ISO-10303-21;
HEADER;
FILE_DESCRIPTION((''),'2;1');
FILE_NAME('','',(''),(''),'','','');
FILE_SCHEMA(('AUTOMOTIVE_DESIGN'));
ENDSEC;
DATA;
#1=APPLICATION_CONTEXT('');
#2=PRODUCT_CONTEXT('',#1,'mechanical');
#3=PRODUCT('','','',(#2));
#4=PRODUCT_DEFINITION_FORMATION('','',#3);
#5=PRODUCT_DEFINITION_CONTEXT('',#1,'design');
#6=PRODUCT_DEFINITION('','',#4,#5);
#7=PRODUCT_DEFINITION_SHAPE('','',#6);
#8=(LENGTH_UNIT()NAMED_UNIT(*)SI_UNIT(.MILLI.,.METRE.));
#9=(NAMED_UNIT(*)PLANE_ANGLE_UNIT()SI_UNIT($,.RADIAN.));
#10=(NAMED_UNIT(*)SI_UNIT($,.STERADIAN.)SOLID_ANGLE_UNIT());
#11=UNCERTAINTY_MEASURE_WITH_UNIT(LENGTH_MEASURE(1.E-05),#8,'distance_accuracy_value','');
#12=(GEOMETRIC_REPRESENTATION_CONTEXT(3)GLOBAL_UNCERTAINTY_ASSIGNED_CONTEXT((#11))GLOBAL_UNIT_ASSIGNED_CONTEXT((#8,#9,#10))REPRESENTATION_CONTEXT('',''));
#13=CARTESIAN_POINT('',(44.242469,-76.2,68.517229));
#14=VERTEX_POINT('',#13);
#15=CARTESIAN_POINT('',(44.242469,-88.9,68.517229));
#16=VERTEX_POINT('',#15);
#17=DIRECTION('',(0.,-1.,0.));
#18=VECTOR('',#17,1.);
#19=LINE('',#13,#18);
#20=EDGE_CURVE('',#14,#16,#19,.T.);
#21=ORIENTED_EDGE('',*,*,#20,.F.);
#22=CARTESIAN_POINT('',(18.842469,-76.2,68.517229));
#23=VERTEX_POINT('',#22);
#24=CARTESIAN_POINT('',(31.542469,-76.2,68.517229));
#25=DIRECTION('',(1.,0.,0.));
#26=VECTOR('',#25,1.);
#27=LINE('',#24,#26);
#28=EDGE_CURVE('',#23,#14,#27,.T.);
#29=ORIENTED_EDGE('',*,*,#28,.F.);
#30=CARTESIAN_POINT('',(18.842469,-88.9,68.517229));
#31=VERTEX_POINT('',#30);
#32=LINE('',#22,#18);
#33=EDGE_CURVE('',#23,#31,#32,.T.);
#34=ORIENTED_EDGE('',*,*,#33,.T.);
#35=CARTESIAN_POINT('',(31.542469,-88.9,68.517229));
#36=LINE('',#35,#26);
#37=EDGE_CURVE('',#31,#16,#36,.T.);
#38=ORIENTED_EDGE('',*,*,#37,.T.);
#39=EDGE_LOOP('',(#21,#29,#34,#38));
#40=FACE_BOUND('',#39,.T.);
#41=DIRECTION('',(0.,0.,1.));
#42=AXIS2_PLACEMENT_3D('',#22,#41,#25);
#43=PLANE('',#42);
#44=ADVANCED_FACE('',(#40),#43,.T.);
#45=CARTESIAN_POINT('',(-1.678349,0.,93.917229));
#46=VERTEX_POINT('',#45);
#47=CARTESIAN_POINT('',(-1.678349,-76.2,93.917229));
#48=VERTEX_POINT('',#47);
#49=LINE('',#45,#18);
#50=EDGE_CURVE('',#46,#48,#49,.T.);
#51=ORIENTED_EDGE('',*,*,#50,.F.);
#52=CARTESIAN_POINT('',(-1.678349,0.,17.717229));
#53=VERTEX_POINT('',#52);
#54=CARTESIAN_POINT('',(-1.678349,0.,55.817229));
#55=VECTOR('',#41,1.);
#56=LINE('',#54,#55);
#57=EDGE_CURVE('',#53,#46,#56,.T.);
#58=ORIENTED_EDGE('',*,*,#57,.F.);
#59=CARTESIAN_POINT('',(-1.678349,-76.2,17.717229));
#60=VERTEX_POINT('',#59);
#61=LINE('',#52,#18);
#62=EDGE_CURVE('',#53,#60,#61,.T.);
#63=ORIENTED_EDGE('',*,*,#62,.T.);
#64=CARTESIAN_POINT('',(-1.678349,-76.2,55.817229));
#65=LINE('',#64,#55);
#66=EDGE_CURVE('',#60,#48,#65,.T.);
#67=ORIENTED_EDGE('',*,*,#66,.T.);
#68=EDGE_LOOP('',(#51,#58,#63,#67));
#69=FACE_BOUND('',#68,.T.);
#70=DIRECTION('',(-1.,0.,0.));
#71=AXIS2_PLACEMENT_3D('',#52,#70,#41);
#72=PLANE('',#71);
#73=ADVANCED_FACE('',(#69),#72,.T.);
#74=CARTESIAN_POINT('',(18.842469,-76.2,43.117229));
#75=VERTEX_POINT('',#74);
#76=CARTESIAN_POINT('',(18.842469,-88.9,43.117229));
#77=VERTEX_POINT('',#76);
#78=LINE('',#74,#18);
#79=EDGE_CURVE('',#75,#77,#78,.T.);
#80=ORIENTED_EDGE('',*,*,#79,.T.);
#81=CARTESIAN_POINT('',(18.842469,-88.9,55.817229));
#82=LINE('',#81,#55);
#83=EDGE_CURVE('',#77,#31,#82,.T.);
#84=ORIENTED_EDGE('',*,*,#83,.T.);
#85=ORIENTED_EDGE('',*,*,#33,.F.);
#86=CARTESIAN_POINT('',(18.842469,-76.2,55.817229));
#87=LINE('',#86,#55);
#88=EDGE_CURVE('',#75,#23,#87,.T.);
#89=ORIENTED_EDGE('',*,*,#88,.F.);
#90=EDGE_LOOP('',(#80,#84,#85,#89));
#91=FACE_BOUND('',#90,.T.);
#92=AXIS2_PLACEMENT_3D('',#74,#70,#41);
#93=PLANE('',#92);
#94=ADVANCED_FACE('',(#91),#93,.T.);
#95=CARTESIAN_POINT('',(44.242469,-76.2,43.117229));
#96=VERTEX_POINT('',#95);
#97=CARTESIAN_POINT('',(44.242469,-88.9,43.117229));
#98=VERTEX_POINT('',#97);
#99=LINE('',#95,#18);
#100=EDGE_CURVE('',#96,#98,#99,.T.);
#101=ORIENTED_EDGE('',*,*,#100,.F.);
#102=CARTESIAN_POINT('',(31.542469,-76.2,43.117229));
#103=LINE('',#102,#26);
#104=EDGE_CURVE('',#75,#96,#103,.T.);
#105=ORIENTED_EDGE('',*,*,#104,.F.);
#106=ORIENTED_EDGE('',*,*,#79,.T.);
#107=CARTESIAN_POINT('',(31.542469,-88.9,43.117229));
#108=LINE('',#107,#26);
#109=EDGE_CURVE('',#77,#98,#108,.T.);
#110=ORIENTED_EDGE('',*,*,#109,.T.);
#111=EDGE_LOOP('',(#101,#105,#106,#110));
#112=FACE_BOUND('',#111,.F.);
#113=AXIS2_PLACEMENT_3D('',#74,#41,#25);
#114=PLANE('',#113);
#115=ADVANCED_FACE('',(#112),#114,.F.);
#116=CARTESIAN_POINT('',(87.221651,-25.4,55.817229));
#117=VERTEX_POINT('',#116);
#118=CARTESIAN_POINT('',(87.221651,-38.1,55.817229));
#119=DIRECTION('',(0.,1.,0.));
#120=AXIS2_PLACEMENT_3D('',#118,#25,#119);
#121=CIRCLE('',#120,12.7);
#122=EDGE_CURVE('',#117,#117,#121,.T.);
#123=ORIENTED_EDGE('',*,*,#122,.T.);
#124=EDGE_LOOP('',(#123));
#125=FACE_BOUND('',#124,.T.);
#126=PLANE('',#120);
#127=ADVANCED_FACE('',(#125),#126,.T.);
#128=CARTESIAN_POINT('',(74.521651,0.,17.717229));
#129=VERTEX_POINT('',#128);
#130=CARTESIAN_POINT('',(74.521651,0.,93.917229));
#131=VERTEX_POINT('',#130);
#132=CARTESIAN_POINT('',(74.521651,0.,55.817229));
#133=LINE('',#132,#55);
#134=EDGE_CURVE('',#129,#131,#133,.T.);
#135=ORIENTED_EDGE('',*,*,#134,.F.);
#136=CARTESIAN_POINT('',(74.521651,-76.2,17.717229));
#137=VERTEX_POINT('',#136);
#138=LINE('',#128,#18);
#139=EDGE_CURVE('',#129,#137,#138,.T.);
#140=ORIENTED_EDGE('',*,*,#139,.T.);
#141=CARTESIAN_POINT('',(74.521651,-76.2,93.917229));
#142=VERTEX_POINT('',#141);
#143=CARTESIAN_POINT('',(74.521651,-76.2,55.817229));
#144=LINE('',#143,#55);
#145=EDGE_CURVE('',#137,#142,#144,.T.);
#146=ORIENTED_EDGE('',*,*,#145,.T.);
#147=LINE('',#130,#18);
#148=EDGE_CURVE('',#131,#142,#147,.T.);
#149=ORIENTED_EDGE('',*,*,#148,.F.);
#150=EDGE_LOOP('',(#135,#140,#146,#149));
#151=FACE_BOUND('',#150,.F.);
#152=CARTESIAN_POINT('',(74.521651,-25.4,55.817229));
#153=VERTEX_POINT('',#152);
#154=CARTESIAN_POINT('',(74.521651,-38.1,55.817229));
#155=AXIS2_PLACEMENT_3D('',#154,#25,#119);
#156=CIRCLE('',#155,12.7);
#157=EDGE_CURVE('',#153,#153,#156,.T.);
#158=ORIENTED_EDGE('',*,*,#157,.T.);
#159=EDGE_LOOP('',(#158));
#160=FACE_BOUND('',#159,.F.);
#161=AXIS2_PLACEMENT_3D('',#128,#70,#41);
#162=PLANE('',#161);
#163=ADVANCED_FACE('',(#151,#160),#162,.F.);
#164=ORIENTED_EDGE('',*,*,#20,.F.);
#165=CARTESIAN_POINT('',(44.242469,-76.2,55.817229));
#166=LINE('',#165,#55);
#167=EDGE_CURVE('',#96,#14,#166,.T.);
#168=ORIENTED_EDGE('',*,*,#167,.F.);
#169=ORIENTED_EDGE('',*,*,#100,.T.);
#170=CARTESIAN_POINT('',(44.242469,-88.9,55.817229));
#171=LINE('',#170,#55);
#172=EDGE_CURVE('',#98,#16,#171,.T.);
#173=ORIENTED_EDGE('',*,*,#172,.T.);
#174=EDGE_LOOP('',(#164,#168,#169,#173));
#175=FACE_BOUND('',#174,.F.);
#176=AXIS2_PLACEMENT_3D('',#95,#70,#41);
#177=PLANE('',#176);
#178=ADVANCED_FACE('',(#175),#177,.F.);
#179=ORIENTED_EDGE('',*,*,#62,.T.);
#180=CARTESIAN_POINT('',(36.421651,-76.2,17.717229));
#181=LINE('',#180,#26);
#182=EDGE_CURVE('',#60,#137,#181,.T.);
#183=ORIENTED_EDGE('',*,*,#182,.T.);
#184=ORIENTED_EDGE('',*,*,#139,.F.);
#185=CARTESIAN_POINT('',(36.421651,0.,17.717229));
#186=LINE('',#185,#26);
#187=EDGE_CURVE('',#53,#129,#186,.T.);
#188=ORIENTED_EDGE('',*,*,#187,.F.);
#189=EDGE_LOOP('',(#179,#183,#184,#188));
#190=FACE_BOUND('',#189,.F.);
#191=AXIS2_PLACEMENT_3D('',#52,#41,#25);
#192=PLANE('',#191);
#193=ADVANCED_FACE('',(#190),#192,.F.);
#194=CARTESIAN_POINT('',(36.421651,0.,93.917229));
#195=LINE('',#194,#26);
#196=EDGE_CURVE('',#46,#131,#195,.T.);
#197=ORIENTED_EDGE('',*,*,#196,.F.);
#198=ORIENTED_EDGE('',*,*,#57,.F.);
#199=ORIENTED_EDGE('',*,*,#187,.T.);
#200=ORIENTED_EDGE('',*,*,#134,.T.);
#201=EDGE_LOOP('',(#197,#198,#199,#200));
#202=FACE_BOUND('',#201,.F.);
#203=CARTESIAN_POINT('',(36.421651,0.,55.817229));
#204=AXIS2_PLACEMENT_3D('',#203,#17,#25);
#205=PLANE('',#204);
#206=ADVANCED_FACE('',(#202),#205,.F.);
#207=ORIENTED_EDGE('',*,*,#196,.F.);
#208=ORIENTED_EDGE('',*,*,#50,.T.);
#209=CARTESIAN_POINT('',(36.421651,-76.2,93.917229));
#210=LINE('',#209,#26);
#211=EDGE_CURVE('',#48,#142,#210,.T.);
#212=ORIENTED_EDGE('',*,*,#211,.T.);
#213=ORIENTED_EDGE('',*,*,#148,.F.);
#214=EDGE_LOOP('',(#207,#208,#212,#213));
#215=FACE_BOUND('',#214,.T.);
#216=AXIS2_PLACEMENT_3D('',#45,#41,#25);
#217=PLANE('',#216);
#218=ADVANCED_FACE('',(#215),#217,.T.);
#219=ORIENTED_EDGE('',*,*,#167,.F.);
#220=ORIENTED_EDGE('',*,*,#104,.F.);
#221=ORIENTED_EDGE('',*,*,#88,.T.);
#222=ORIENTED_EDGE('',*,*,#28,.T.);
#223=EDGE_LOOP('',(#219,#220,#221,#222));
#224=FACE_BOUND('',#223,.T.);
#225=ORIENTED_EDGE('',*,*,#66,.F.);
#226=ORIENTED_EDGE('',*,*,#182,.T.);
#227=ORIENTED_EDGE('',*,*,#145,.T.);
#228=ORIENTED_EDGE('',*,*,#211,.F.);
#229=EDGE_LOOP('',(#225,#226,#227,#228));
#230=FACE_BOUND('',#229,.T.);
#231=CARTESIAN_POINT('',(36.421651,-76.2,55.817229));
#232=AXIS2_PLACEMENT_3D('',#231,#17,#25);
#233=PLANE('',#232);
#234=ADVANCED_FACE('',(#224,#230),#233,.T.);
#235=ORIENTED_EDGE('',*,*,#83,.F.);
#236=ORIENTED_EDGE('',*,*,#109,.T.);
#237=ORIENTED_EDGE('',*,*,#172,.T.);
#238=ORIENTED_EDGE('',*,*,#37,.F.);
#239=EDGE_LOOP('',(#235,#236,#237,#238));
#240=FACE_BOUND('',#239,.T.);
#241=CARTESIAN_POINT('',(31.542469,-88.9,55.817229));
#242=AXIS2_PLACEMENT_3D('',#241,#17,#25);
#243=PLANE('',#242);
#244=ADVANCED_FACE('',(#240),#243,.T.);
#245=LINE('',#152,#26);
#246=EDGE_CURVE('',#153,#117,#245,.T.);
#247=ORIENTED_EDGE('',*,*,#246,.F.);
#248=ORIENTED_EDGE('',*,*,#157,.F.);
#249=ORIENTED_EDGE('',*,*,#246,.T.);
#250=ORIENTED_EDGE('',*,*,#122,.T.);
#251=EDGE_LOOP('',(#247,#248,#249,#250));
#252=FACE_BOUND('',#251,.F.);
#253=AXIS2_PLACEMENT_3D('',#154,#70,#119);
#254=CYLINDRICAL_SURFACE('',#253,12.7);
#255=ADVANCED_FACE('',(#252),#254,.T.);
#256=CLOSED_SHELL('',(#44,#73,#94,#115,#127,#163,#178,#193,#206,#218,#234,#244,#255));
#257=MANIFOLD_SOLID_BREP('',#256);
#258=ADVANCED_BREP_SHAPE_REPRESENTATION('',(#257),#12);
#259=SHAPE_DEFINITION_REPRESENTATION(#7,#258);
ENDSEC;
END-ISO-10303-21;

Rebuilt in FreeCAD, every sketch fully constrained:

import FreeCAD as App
import Part
import Sketcher
Q = App.Units.Quantity


def add_polygon(sketch, points):
    """Adds a closed chain of lines whose ends are joined by coincident constraints."""
    first, n = sketch.GeometryCount, len(points)
    for a, b in zip(points, points[1:] + points[:1]):
        sketch.addGeometry(Part.LineSegment(App.Vector(*a, 0), App.Vector(*b, 0)), False)
    for i in range(n):
        sketch.addConstraint(Sketcher.Constraint("Coincident", first + i, 2, first + (i + 1) % n, 1))

doc = App.newDocument("Part")
body = doc.addObject("PartDesign::Body", "Body")

sketch1 = body.newObject("Sketcher::SketchObject", "Sketch")
sketch1.AttachmentSupport = (doc.getObject("XZ_Plane"), [""])
sketch1.MapMode = "FlatFace"
add_polygon(sketch1, [(-2, 94), (-2, 18), (75, 18), (75, 94)])
sketch1.addConstraint([
    Sketcher.Constraint("Vertical", 0),
    Sketcher.Constraint("Horizontal", 1),
    Sketcher.Constraint("Vertical", 2),
    Sketcher.Constraint("Horizontal", 3),
    Sketcher.Constraint("Equal", 3, 0),
    Sketcher.Constraint("DistanceX", 1, 1, 1, 2, Q("3 in")),
    Sketcher.Constraint("DistanceX", 0, 2, -1, 1, Q("1.678349 mm")),
    Sketcher.Constraint("DistanceY", -1, 1, 0, 2, Q("17.717229 mm")),
])
pad1 = body.newObject("PartDesign::Pad", "Pad")
pad1.Profile = sketch1
pad1.Length = Q("3 in")

sketch2 = body.newObject("Sketcher::SketchObject", "Sketch001")
sketch2.AttachmentSupport = (doc.getObject("XZ_Plane"), [""])
sketch2.MapMode = "FlatFace"
sketch2.AttachmentOffset = App.Placement(App.Vector(0, 0, 3 * 25.4), App.Rotation())
add_polygon(sketch2, [(19, 69), (19, 43), (44, 43), (44, 69)])
sketch2.addConstraint([
    Sketcher.Constraint("Vertical", 0),
    Sketcher.Constraint("Horizontal", 1),
    Sketcher.Constraint("Vertical", 2),
    Sketcher.Constraint("Horizontal", 3),
    Sketcher.Constraint("Equal", 3, 0),
    Sketcher.Constraint("DistanceX", 1, 1, 1, 2, Q("1 in")),
    Sketcher.Constraint("DistanceX", -1, 1, 0, 2, Q("18.842469 mm")),
    Sketcher.Constraint("DistanceY", -1, 1, 0, 2, Q("43.117229 mm")),
])
pad2 = body.newObject("PartDesign::Pad", "Pad001")
pad2.Profile = sketch2
pad2.Length = Q("0.5 in")

sketch3 = body.newObject("Sketcher::SketchObject", "Sketch002")
sketch3.AttachmentSupport = (doc.getObject("YZ_Plane"), [""])
sketch3.MapMode = "FlatFace"
sketch3.AttachmentOffset = App.Placement(App.Vector(0, 0, 74.521651), App.Rotation())
sketch3.addGeometry(Part.Circle(App.Vector(-38, 56, 0), App.Vector(0, 0, 1), 13), False)
sketch3.addConstraint([
    Sketcher.Constraint("Diameter", 0, Q("1 in")),
    Sketcher.Constraint("DistanceX", 0, 3, -1, 1, Q("1.5 in")),
    Sketcher.Constraint("DistanceY", -1, 1, 0, 3, Q("55.817229 mm")),
])
pad3 = body.newObject("PartDesign::Pad", "Pad002")
pad3.Profile = sketch3
pad3.Length = Q("0.5 in")

doc.recompute()
